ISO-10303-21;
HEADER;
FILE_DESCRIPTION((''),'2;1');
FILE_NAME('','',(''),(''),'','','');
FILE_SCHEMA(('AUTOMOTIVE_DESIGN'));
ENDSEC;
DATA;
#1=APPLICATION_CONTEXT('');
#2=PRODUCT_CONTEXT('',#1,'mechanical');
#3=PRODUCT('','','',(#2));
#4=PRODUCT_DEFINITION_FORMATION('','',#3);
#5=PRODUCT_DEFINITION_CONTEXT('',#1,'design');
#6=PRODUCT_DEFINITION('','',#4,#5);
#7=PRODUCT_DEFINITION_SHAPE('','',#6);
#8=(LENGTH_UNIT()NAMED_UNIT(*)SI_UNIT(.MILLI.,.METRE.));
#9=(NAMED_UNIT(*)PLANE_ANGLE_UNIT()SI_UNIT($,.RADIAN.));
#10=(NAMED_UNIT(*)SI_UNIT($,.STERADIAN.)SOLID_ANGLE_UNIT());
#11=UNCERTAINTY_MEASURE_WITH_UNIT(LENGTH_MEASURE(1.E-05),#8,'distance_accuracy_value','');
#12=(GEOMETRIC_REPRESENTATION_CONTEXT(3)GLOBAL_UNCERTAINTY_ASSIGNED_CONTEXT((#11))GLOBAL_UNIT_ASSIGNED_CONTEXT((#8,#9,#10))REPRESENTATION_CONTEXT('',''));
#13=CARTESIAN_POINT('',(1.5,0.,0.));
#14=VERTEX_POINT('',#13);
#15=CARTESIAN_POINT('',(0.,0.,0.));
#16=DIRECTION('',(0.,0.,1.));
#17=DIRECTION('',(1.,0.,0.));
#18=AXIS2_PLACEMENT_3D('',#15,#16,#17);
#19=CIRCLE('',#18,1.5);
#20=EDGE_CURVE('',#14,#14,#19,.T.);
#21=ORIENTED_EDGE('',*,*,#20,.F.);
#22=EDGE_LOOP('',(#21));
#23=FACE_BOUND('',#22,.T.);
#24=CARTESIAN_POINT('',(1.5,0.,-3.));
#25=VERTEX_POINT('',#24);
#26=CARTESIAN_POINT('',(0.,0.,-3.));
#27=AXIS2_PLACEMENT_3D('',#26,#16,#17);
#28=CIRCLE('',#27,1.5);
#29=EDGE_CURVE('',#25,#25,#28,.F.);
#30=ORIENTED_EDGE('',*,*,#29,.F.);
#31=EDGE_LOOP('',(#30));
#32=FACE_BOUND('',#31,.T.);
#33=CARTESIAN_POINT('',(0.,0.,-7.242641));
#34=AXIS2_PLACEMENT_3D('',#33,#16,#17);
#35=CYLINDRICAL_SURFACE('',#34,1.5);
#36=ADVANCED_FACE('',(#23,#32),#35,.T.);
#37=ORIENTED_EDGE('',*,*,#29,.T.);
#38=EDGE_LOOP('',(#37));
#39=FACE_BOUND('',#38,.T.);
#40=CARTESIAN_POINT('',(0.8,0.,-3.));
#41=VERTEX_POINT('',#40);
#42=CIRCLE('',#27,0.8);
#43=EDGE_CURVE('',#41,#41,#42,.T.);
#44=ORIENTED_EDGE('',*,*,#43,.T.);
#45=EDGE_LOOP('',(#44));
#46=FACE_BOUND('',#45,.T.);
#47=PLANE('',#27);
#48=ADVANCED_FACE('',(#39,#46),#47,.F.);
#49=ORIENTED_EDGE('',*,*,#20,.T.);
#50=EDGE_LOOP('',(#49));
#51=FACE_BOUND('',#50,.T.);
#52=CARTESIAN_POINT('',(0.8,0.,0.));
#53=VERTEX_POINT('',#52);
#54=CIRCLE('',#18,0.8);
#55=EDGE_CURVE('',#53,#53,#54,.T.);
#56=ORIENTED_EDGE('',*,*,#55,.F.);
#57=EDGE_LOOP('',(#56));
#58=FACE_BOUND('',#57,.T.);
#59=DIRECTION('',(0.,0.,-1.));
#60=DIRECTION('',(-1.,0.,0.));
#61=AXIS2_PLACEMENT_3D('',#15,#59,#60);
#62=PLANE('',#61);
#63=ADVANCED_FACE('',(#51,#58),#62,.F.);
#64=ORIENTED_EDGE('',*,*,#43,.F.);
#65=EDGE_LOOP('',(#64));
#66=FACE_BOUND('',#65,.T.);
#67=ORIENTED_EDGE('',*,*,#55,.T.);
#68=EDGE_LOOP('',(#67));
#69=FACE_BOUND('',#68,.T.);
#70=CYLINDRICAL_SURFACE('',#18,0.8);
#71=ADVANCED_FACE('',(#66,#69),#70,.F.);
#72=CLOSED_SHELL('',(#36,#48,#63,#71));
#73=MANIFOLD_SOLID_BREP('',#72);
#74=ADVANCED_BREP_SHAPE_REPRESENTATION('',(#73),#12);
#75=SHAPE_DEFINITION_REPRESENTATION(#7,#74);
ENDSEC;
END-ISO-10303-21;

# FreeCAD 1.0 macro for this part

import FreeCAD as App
import Part
import Sketcher


def add_polygon(sketch, points):
    """Adds a closed chain of lines whose ends are joined by coincident constraints."""
    first, n = sketch.GeometryCount, len(points)
    for a, b in zip(points, points[1:] + points[:1]):
        sketch.addGeometry(Part.LineSegment(App.Vector(*a, 0), App.Vector(*b, 0)), False)
    for i in range(n):
        sketch.addConstraint(Sketcher.Constraint("Coincident", first + i, 2, first + (i + 1) % n, 1))

doc = App.newDocument("Part")
params = doc.addObject("Spreadsheet::Sheet", "Params")
for row, (alias, value) in enumerate([
    ("sketch1_height", "3 mm"),
    ("sketch1_width", "1.4 mm"),
    ("revolution_angle", "360 deg"),
    ("sketch2_diameter", "1.6 mm"),
    ("hole_diameter", "1.6 mm"),
    ("sketch3_diameter", "3 mm"),
    ("sketch3_diameter2", "2.8 mm"),
    ("pad1_length", "3 mm"),
], start=1):
    params.set(f"A{row}", alias)
    params.set(f"B{row}", "=" + value)
    params.setAlias(f"B{row}", alias)

body = doc.addObject("PartDesign::Body", "Body")

sketch1 = body.newObject("Sketcher::SketchObject", "Sketch")
sketch1.AttachmentSupport = (doc.getObject("YZ_Plane"), [""])
sketch1.MapMode = "FlatFace"
add_polygon(sketch1, [(1.4, 0), (0, 0), (0, -3), (1.4, -3)])
sketch1.addConstraint(Sketcher.Constraint("Horizontal", 0))
sketch1.addConstraint(Sketcher.Constraint("Vertical", 1))
sketch1.addConstraint(Sketcher.Constraint("Horizontal", 2))
sketch1.addConstraint(Sketcher.Constraint("Vertical", 3))
sketch1.addConstraint(Sketcher.Constraint("Coincident", 0, 2, -1, 1))
sketch1.addConstraint(Sketcher.Constraint("DistanceY", 1, 2, 1, 1, 3.0))
sketch1.addConstraint(Sketcher.Constraint("DistanceX", 0, 2, 0, 1, 1.4))
sketch1.setExpression("Constraints[9]", "Params.sketch1_height")
sketch1.setExpression("Constraints[10]", "Params.sketch1_width")
revolution = body.newObject("PartDesign::Revolution", "Revolution")
revolution.Profile = sketch1
revolution.ReferenceAxis = (sketch1, ["V_Axis"])
revolution.setExpression("Angle", "Params.revolution_angle")

sketch2 = body.newObject("Sketcher::SketchObject", "Sketch001")
sketch2.AttachmentSupport = (doc.getObject("XY_Plane"), [""])
sketch2.MapMode = "FlatFace"
sketch2.addGeometry(Part.Circle(App.Vector(0, 0, 0), App.Vector(0, 0, 1), 0.8), False)
sketch2.addConstraint(Sketcher.Constraint("Coincident", 0, 3, -1, 1))
sketch2.addConstraint(Sketcher.Constraint("Diameter", 0, 1.6))
sketch2.setExpression("Constraints[1]", "Params.sketch2_diameter")
doc.recompute()
hole = body.newObject("PartDesign::Hole", "Hole")
hole.Profile = sketch2
hole.ThreadType = "None"
hole.setExpression("Diameter", "Params.hole_diameter")
hole.DepthType = "ThroughAll"

sketch3 = body.newObject("Sketcher::SketchObject", "Sketch002")
sketch3.AttachmentSupport = (doc.getObject("XY_Plane"), [""])
sketch3.MapMode = "FlatFace"
sketch3.addGeometry(Part.Circle(App.Vector(0, 0, 0), App.Vector(0, 0, 1), 1.5), False)
sketch3.addGeometry(Part.Circle(App.Vector(0, 0, 0), App.Vector(0, 0, 1), 1.4), False)
sketch3.addConstraint(Sketcher.Constraint("Coincident", 0, 3, -1, 1))
sketch3.addConstraint(Sketcher.Constraint("Coincident", 1, 3, -1, 1))
sketch3.addConstraint(Sketcher.Constraint("Diameter", 0, 3.0))
sketch3.addConstraint(Sketcher.Constraint("Diameter", 1, 2.8))
sketch3.setExpression("Constraints[2]", "Params.sketch3_diameter")
sketch3.setExpression("Constraints[3]", "Params.sketch3_diameter2")
pad1 = body.newObject("PartDesign::Pad", "Pad")
pad1.Profile = sketch3
pad1.setExpression("Length", "Params.pad1_length")
pad1.Reversed = True

doc.recompute()
